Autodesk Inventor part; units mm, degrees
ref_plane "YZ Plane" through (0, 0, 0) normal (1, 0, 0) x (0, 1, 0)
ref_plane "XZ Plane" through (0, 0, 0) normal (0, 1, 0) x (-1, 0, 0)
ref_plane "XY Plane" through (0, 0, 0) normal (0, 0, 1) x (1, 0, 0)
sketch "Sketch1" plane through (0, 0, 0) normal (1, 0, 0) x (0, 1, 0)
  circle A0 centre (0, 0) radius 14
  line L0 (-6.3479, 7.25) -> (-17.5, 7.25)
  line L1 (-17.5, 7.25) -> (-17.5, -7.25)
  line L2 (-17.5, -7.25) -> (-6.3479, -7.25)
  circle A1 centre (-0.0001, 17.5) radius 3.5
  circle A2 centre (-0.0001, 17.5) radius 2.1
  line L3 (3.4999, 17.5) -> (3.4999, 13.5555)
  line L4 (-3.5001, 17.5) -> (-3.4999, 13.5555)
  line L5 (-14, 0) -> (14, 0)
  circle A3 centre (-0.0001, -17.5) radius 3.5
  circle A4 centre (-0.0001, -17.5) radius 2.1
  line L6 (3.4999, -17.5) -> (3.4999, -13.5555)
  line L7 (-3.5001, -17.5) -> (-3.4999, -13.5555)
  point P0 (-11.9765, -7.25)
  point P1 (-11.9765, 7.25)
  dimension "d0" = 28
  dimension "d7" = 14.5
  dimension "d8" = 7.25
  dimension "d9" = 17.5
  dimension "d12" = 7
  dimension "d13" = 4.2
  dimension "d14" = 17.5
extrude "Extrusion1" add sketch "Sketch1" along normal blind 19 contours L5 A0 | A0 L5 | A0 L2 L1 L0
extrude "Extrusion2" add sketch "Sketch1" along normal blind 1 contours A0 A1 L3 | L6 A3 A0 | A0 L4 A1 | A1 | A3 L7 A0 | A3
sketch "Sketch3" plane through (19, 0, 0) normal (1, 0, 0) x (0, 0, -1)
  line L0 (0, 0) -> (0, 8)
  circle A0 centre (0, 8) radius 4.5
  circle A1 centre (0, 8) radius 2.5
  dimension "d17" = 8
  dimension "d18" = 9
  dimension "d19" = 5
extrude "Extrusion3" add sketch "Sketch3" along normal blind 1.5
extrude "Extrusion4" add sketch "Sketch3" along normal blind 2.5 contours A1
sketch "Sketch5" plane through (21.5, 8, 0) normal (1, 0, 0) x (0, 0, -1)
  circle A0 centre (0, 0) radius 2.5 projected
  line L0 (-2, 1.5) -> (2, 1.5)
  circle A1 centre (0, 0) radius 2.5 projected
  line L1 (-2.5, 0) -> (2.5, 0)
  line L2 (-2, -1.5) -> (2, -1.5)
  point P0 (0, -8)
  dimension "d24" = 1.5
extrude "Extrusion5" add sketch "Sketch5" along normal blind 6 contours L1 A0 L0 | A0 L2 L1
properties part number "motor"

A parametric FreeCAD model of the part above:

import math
import FreeCAD as App
import Part
import Sketcher

doc = App.newDocument("Part")
body = doc.addObject("PartDesign::Body", "Body")

# Sketch on YZ plane
sketch1 = body.newObject("Sketcher::SketchObject", "Sketch")
sketch1.AttachmentSupport = (doc.getObject("YZ_Plane"), [""])
sketch1.MapMode = "FlatFace"
sketch1.addGeometry(Part.LineSegment(App.Vector(-11.97654, 7.25, 0), App.Vector(-17.5, 7.25, 0)), False)
sketch1.addGeometry(Part.LineSegment(App.Vector(-17.5, 7.25, 0), App.Vector(-17.5, -7.25, 0)), False)
sketch1.addGeometry(Part.LineSegment(App.Vector(-17.5, -7.25, 0), App.Vector(-11.97654, -7.25, 0)), False)
sketch1.addGeometry(Part.ArcOfCircle(Part.Circle(App.Vector(0, 0, 0), App.Vector(0, 0, 1), 14), math.radians(-148.811378), math.radians(148.811378)), False)
sketch1.addConstraint(Sketcher.Constraint("Coincident", 0, 2, 1, 1))
sketch1.addConstraint(Sketcher.Constraint("Coincident", 1, 2, 2, 1))
sketch1.addConstraint(Sketcher.Constraint("Coincident", 2, 2, 3, 1))
sketch1.addConstraint(Sketcher.Constraint("Coincident", 3, 2, 0, 1))
sketch1.addConstraint(Sketcher.Constraint("Horizontal", 0))
sketch1.addConstraint(Sketcher.Constraint("Vertical", 1))
sketch1.addConstraint(Sketcher.Constraint("Horizontal", 2))
sketch1.addConstraint(Sketcher.Constraint("Coincident", 3, 3, -1, 1))
sketch1.addConstraint(Sketcher.Constraint("Vertical", 2, 2, 3, 2))
sketch1.addConstraint(Sketcher.Constraint("Radius", 3, 14.0))
sketch1.addConstraint(Sketcher.Constraint("DistanceY", 1, 2, 1, 1, 14.5))
sketch1.addConstraint(Sketcher.Constraint("DistanceX", 0, 2, -1, 1, 17.5))
pad1 = body.newObject("PartDesign::Pad", "Pad")
pad1.Profile = sketch1
pad1.Length = 19

# Sketch on YZ plane
sketch2 = body.newObject("Sketcher::SketchObject", "Sketch001")
sketch2.AttachmentSupport = (doc.getObject("YZ_Plane"), [""])
sketch2.MapMode = "FlatFace"
sketch2.addGeometry(Part.LineSegment(App.Vector(3.4999, 13.5555, 0), App.Vector(3.4999, 17.5, 0)), False)
sketch2.addGeometry(Part.ArcOfCircle(Part.Circle(App.Vector(-0.0001, 17.5, 0), App.Vector(0, 0, 1), 3.5), math.radians(0), math.radians(180)), False)
sketch2.addGeometry(Part.LineSegment(App.Vector(-3.5001, 17.5, 0), App.Vector(-3.4999, 13.5555, 0)), False)
sketch2.addGeometry(Part.ArcOfCircle(Part.Circle(App.Vector(0, 0, 0), App.Vector(0, 0, 1), 14), math.radians(75.522944), math.radians(104.477056)), False)
sketch2.addGeometry(Part.Circle(App.Vector(-0.0001, 17.5, 0), App.Vector(0, 0, 1), 2.1), False)
sketch2.addGeometry(Part.LineSegment(App.Vector(3.4999, -17.5, 0), App.Vector(3.4999, -13.5555, 0)), False)
sketch2.addGeometry(Part.ArcOfCircle(Part.Circle(App.Vector(0, 0, 0), App.Vector(0, 0, 1), 14), math.radians(-104.477056), math.radians(-75.522944)), False)
sketch2.addGeometry(Part.LineSegment(App.Vector(-3.4999, -13.5555, 0), App.Vector(-3.5001, -17.5, 0)), False)
sketch2.addGeometry(Part.ArcOfCircle(Part.Circle(App.Vector(-0.0001, -17.5, 0), App.Vector(0, 0, 1), 3.5), math.radians(180), math.radians(360)), False)
sketch2.addGeometry(Part.Circle(App.Vector(-0.0001, -17.5, 0), App.Vector(0, 0, 1), 2.1), False)
sketch2.addConstraint(Sketcher.Constraint("Tangent", 0, 2, 1, 1))
sketch2.addConstraint(Sketcher.Constraint("Tangent", 1, 2, 2, 1))
sketch2.addConstraint(Sketcher.Constraint("Coincident", 2, 2, 3, 2))
sketch2.addConstraint(Sketcher.Constraint("Coincident", 3, 1, 0, 1))
sketch2.addConstraint(Sketcher.Constraint("Coincident", 5, 2, 6, 2))
sketch2.addConstraint(Sketcher.Constraint("Coincident", 6, 1, 7, 1))
sketch2.addConstraint(Sketcher.Constraint("Tangent", 7, 2, 8, 1))
sketch2.addConstraint(Sketcher.Constraint("Tangent", 8, 2, 5, 1))
sketch2.addConstraint(Sketcher.Constraint("Vertical", 0))
sketch2.addConstraint(Sketcher.Constraint("Vertical", 5))
sketch2.addConstraint(Sketcher.Constraint("Coincident", 3, 3, -1, 1))
sketch2.addConstraint(Sketcher.Constraint("Coincident", 6, 3, -1, 1))
sketch2.addConstraint(Sketcher.Constraint("Coincident", 4, 3, 1, 3))
sketch2.addConstraint(Sketcher.Constraint("Coincident", 9, 3, 8, 3))
sketch2.addConstraint(Sketcher.Constraint("Equal", 3, 6))
sketch2.addConstraint(Sketcher.Constraint("Equal", 1, 8))
sketch2.addConstraint(Sketcher.Constraint("Equal", 4, 9))
sketch2.addConstraint(Sketcher.Constraint("Symmetric", 1, 3, 8, 3, -1, 1))
sketch2.addConstraint(Sketcher.Constraint("Symmetric", 0, 2, 1, 2, -2))
sketch2.addConstraint(Sketcher.Constraint("Parallel", 2, 7))
sketch2.addConstraint(Sketcher.Constraint("Radius", 3, 14.0))
sketch2.addConstraint(Sketcher.Constraint("Diameter", 4, 4.2))
sketch2.addConstraint(Sketcher.Constraint("Radius", 1, 3.5))
sketch2.addConstraint(Sketcher.Constraint("DistanceY", -1, 1, 1, 3, 17.5))
pad2 = body.newObject("PartDesign::Pad", "Pad001")
pad2.Profile = sketch2
pad2.Length = 1

# Sketch on YZ plane
sketch3 = body.newObject("Sketcher::SketchObject", "Sketch002")
sketch3.AttachmentSupport = (doc.getObject("YZ_Plane"), [""])
sketch3.MapMode = "FlatFace"
sketch3.AttachmentOffset = App.Placement(App.Vector(0, 0, 19), App.Rotation())
sketch3.addGeometry(Part.Circle(App.Vector(8, 0, 0), App.Vector(0, 0, 1), 4.5), False)
sketch3.addGeometry(Part.Circle(App.Vector(8, 0, 0), App.Vector(0, 0, 1), 2.5), False)
sketch3.addConstraint(Sketcher.Constraint("Coincident", 1, 3, 0, 3))
sketch3.addConstraint(Sketcher.Constraint("PointOnObject", 0, 3, -1))
sketch3.addConstraint(Sketcher.Constraint("Diameter", 0, 9.0))
sketch3.addConstraint(Sketcher.Constraint("Diameter", 1, 5.0))
sketch3.addConstraint(Sketcher.Constraint("DistanceX", -1, 1, 0, 3, 8.0))
pad3 = body.newObject("PartDesign::Pad", "Pad002")
pad3.Profile = sketch3
pad3.Length = 1.5

# Sketch on YZ plane
sketch4 = body.newObject("Sketcher::SketchObject", "Sketch003")
sketch4.AttachmentSupport = (doc.getObject("YZ_Plane"), [""])
sketch4.MapMode = "FlatFace"
sketch4.AttachmentOffset = App.Placement(App.Vector(0, 0, 19), App.Rotation())
sketch4.addGeometry(Part.Circle(App.Vector(8, 0, 0), App.Vector(0, 0, 1), 2.5), False)
sketch4.addConstraint(Sketcher.Constraint("PointOnObject", 0, 3, -1))
sketch4.addConstraint(Sketcher.Constraint("Diameter", 0, 5.0))
sketch4.addConstraint(Sketcher.Constraint("DistanceX", -1, 1, 0, 3, 8.0))
pad4 = body.newObject("PartDesign::Pad", "Pad003")
pad4.Profile = sketch4
pad4.Length = 2.5

# Sketch on YZ plane
sketch5 = body.newObject("Sketcher::SketchObject", "Sketch004")
sketch5.AttachmentSupport = (doc.getObject("YZ_Plane"), [""])
sketch5.MapMode = "FlatFace"
sketch5.AttachmentOffset = App.Placement(App.Vector(0, 0, 21.5), App.Rotation())
sketch5.addGeometry(Part.ArcOfCircle(Part.Circle(App.Vector(8, 0, 0), App.Vector(0, 0, 1), 2.5), math.radians(53.130102), math.radians(126.869898)), False)
sketch5.addGeometry(Part.LineSegment(App.Vector(6.5, 2, 0), App.Vector(6.5, -2, 0)), False)
sketch5.addGeometry(Part.ArcOfCircle(Part.Circle(App.Vector(8, 0, 0), App.Vector(0, 0, 1), 2.5), math.radians(-126.869898), math.radians(-53.130102)), False)
sketch5.addGeometry(Part.LineSegment(App.Vector(9.5, -2, 0), App.Vector(9.5, 2, 0)), False)
sketch5.addConstraint(Sketcher.Constraint("Coincident", 0, 2, 1, 1))
sketch5.addConstraint(Sketcher.Constraint("Coincident", 1, 2, 2, 1))
sketch5.addConstraint(Sketcher.Constraint("Coincident", 2, 2, 3, 1))
sketch5.addConstraint(Sketcher.Constraint("Coincident", 3, 2, 0, 1))
sketch5.addConstraint(Sketcher.Constraint("Vertical", 1))
sketch5.addConstraint(Sketcher.Constraint("Vertical", 3))
sketch5.addConstraint(Sketcher.Constraint("Coincident", 2, 3, 0, 3))
sketch5.addConstraint(Sketcher.Constraint("Equal", 0, 2))
sketch5.addConstraint(Sketcher.Constraint("PointOnObject", 0, 3, -1))
sketch5.addConstraint(Sketcher.Constraint("Horizontal", 1, 2, 2, 2))
sketch5.addConstraint(Sketcher.Constraint("Radius", 0, 2.5))
sketch5.addConstraint(Sketcher.Constraint("DistanceX", 0, 2, 0, 3, 1.5))
sketch5.addConstraint(Sketcher.Constraint("DistanceX", -1, 1, 0, 3, 8.0))
pad5 = body.newObject("PartDesign::Pad", "Pad004")
pad5.Profile = sketch5
pad5.Length = 6

doc.recompute()
